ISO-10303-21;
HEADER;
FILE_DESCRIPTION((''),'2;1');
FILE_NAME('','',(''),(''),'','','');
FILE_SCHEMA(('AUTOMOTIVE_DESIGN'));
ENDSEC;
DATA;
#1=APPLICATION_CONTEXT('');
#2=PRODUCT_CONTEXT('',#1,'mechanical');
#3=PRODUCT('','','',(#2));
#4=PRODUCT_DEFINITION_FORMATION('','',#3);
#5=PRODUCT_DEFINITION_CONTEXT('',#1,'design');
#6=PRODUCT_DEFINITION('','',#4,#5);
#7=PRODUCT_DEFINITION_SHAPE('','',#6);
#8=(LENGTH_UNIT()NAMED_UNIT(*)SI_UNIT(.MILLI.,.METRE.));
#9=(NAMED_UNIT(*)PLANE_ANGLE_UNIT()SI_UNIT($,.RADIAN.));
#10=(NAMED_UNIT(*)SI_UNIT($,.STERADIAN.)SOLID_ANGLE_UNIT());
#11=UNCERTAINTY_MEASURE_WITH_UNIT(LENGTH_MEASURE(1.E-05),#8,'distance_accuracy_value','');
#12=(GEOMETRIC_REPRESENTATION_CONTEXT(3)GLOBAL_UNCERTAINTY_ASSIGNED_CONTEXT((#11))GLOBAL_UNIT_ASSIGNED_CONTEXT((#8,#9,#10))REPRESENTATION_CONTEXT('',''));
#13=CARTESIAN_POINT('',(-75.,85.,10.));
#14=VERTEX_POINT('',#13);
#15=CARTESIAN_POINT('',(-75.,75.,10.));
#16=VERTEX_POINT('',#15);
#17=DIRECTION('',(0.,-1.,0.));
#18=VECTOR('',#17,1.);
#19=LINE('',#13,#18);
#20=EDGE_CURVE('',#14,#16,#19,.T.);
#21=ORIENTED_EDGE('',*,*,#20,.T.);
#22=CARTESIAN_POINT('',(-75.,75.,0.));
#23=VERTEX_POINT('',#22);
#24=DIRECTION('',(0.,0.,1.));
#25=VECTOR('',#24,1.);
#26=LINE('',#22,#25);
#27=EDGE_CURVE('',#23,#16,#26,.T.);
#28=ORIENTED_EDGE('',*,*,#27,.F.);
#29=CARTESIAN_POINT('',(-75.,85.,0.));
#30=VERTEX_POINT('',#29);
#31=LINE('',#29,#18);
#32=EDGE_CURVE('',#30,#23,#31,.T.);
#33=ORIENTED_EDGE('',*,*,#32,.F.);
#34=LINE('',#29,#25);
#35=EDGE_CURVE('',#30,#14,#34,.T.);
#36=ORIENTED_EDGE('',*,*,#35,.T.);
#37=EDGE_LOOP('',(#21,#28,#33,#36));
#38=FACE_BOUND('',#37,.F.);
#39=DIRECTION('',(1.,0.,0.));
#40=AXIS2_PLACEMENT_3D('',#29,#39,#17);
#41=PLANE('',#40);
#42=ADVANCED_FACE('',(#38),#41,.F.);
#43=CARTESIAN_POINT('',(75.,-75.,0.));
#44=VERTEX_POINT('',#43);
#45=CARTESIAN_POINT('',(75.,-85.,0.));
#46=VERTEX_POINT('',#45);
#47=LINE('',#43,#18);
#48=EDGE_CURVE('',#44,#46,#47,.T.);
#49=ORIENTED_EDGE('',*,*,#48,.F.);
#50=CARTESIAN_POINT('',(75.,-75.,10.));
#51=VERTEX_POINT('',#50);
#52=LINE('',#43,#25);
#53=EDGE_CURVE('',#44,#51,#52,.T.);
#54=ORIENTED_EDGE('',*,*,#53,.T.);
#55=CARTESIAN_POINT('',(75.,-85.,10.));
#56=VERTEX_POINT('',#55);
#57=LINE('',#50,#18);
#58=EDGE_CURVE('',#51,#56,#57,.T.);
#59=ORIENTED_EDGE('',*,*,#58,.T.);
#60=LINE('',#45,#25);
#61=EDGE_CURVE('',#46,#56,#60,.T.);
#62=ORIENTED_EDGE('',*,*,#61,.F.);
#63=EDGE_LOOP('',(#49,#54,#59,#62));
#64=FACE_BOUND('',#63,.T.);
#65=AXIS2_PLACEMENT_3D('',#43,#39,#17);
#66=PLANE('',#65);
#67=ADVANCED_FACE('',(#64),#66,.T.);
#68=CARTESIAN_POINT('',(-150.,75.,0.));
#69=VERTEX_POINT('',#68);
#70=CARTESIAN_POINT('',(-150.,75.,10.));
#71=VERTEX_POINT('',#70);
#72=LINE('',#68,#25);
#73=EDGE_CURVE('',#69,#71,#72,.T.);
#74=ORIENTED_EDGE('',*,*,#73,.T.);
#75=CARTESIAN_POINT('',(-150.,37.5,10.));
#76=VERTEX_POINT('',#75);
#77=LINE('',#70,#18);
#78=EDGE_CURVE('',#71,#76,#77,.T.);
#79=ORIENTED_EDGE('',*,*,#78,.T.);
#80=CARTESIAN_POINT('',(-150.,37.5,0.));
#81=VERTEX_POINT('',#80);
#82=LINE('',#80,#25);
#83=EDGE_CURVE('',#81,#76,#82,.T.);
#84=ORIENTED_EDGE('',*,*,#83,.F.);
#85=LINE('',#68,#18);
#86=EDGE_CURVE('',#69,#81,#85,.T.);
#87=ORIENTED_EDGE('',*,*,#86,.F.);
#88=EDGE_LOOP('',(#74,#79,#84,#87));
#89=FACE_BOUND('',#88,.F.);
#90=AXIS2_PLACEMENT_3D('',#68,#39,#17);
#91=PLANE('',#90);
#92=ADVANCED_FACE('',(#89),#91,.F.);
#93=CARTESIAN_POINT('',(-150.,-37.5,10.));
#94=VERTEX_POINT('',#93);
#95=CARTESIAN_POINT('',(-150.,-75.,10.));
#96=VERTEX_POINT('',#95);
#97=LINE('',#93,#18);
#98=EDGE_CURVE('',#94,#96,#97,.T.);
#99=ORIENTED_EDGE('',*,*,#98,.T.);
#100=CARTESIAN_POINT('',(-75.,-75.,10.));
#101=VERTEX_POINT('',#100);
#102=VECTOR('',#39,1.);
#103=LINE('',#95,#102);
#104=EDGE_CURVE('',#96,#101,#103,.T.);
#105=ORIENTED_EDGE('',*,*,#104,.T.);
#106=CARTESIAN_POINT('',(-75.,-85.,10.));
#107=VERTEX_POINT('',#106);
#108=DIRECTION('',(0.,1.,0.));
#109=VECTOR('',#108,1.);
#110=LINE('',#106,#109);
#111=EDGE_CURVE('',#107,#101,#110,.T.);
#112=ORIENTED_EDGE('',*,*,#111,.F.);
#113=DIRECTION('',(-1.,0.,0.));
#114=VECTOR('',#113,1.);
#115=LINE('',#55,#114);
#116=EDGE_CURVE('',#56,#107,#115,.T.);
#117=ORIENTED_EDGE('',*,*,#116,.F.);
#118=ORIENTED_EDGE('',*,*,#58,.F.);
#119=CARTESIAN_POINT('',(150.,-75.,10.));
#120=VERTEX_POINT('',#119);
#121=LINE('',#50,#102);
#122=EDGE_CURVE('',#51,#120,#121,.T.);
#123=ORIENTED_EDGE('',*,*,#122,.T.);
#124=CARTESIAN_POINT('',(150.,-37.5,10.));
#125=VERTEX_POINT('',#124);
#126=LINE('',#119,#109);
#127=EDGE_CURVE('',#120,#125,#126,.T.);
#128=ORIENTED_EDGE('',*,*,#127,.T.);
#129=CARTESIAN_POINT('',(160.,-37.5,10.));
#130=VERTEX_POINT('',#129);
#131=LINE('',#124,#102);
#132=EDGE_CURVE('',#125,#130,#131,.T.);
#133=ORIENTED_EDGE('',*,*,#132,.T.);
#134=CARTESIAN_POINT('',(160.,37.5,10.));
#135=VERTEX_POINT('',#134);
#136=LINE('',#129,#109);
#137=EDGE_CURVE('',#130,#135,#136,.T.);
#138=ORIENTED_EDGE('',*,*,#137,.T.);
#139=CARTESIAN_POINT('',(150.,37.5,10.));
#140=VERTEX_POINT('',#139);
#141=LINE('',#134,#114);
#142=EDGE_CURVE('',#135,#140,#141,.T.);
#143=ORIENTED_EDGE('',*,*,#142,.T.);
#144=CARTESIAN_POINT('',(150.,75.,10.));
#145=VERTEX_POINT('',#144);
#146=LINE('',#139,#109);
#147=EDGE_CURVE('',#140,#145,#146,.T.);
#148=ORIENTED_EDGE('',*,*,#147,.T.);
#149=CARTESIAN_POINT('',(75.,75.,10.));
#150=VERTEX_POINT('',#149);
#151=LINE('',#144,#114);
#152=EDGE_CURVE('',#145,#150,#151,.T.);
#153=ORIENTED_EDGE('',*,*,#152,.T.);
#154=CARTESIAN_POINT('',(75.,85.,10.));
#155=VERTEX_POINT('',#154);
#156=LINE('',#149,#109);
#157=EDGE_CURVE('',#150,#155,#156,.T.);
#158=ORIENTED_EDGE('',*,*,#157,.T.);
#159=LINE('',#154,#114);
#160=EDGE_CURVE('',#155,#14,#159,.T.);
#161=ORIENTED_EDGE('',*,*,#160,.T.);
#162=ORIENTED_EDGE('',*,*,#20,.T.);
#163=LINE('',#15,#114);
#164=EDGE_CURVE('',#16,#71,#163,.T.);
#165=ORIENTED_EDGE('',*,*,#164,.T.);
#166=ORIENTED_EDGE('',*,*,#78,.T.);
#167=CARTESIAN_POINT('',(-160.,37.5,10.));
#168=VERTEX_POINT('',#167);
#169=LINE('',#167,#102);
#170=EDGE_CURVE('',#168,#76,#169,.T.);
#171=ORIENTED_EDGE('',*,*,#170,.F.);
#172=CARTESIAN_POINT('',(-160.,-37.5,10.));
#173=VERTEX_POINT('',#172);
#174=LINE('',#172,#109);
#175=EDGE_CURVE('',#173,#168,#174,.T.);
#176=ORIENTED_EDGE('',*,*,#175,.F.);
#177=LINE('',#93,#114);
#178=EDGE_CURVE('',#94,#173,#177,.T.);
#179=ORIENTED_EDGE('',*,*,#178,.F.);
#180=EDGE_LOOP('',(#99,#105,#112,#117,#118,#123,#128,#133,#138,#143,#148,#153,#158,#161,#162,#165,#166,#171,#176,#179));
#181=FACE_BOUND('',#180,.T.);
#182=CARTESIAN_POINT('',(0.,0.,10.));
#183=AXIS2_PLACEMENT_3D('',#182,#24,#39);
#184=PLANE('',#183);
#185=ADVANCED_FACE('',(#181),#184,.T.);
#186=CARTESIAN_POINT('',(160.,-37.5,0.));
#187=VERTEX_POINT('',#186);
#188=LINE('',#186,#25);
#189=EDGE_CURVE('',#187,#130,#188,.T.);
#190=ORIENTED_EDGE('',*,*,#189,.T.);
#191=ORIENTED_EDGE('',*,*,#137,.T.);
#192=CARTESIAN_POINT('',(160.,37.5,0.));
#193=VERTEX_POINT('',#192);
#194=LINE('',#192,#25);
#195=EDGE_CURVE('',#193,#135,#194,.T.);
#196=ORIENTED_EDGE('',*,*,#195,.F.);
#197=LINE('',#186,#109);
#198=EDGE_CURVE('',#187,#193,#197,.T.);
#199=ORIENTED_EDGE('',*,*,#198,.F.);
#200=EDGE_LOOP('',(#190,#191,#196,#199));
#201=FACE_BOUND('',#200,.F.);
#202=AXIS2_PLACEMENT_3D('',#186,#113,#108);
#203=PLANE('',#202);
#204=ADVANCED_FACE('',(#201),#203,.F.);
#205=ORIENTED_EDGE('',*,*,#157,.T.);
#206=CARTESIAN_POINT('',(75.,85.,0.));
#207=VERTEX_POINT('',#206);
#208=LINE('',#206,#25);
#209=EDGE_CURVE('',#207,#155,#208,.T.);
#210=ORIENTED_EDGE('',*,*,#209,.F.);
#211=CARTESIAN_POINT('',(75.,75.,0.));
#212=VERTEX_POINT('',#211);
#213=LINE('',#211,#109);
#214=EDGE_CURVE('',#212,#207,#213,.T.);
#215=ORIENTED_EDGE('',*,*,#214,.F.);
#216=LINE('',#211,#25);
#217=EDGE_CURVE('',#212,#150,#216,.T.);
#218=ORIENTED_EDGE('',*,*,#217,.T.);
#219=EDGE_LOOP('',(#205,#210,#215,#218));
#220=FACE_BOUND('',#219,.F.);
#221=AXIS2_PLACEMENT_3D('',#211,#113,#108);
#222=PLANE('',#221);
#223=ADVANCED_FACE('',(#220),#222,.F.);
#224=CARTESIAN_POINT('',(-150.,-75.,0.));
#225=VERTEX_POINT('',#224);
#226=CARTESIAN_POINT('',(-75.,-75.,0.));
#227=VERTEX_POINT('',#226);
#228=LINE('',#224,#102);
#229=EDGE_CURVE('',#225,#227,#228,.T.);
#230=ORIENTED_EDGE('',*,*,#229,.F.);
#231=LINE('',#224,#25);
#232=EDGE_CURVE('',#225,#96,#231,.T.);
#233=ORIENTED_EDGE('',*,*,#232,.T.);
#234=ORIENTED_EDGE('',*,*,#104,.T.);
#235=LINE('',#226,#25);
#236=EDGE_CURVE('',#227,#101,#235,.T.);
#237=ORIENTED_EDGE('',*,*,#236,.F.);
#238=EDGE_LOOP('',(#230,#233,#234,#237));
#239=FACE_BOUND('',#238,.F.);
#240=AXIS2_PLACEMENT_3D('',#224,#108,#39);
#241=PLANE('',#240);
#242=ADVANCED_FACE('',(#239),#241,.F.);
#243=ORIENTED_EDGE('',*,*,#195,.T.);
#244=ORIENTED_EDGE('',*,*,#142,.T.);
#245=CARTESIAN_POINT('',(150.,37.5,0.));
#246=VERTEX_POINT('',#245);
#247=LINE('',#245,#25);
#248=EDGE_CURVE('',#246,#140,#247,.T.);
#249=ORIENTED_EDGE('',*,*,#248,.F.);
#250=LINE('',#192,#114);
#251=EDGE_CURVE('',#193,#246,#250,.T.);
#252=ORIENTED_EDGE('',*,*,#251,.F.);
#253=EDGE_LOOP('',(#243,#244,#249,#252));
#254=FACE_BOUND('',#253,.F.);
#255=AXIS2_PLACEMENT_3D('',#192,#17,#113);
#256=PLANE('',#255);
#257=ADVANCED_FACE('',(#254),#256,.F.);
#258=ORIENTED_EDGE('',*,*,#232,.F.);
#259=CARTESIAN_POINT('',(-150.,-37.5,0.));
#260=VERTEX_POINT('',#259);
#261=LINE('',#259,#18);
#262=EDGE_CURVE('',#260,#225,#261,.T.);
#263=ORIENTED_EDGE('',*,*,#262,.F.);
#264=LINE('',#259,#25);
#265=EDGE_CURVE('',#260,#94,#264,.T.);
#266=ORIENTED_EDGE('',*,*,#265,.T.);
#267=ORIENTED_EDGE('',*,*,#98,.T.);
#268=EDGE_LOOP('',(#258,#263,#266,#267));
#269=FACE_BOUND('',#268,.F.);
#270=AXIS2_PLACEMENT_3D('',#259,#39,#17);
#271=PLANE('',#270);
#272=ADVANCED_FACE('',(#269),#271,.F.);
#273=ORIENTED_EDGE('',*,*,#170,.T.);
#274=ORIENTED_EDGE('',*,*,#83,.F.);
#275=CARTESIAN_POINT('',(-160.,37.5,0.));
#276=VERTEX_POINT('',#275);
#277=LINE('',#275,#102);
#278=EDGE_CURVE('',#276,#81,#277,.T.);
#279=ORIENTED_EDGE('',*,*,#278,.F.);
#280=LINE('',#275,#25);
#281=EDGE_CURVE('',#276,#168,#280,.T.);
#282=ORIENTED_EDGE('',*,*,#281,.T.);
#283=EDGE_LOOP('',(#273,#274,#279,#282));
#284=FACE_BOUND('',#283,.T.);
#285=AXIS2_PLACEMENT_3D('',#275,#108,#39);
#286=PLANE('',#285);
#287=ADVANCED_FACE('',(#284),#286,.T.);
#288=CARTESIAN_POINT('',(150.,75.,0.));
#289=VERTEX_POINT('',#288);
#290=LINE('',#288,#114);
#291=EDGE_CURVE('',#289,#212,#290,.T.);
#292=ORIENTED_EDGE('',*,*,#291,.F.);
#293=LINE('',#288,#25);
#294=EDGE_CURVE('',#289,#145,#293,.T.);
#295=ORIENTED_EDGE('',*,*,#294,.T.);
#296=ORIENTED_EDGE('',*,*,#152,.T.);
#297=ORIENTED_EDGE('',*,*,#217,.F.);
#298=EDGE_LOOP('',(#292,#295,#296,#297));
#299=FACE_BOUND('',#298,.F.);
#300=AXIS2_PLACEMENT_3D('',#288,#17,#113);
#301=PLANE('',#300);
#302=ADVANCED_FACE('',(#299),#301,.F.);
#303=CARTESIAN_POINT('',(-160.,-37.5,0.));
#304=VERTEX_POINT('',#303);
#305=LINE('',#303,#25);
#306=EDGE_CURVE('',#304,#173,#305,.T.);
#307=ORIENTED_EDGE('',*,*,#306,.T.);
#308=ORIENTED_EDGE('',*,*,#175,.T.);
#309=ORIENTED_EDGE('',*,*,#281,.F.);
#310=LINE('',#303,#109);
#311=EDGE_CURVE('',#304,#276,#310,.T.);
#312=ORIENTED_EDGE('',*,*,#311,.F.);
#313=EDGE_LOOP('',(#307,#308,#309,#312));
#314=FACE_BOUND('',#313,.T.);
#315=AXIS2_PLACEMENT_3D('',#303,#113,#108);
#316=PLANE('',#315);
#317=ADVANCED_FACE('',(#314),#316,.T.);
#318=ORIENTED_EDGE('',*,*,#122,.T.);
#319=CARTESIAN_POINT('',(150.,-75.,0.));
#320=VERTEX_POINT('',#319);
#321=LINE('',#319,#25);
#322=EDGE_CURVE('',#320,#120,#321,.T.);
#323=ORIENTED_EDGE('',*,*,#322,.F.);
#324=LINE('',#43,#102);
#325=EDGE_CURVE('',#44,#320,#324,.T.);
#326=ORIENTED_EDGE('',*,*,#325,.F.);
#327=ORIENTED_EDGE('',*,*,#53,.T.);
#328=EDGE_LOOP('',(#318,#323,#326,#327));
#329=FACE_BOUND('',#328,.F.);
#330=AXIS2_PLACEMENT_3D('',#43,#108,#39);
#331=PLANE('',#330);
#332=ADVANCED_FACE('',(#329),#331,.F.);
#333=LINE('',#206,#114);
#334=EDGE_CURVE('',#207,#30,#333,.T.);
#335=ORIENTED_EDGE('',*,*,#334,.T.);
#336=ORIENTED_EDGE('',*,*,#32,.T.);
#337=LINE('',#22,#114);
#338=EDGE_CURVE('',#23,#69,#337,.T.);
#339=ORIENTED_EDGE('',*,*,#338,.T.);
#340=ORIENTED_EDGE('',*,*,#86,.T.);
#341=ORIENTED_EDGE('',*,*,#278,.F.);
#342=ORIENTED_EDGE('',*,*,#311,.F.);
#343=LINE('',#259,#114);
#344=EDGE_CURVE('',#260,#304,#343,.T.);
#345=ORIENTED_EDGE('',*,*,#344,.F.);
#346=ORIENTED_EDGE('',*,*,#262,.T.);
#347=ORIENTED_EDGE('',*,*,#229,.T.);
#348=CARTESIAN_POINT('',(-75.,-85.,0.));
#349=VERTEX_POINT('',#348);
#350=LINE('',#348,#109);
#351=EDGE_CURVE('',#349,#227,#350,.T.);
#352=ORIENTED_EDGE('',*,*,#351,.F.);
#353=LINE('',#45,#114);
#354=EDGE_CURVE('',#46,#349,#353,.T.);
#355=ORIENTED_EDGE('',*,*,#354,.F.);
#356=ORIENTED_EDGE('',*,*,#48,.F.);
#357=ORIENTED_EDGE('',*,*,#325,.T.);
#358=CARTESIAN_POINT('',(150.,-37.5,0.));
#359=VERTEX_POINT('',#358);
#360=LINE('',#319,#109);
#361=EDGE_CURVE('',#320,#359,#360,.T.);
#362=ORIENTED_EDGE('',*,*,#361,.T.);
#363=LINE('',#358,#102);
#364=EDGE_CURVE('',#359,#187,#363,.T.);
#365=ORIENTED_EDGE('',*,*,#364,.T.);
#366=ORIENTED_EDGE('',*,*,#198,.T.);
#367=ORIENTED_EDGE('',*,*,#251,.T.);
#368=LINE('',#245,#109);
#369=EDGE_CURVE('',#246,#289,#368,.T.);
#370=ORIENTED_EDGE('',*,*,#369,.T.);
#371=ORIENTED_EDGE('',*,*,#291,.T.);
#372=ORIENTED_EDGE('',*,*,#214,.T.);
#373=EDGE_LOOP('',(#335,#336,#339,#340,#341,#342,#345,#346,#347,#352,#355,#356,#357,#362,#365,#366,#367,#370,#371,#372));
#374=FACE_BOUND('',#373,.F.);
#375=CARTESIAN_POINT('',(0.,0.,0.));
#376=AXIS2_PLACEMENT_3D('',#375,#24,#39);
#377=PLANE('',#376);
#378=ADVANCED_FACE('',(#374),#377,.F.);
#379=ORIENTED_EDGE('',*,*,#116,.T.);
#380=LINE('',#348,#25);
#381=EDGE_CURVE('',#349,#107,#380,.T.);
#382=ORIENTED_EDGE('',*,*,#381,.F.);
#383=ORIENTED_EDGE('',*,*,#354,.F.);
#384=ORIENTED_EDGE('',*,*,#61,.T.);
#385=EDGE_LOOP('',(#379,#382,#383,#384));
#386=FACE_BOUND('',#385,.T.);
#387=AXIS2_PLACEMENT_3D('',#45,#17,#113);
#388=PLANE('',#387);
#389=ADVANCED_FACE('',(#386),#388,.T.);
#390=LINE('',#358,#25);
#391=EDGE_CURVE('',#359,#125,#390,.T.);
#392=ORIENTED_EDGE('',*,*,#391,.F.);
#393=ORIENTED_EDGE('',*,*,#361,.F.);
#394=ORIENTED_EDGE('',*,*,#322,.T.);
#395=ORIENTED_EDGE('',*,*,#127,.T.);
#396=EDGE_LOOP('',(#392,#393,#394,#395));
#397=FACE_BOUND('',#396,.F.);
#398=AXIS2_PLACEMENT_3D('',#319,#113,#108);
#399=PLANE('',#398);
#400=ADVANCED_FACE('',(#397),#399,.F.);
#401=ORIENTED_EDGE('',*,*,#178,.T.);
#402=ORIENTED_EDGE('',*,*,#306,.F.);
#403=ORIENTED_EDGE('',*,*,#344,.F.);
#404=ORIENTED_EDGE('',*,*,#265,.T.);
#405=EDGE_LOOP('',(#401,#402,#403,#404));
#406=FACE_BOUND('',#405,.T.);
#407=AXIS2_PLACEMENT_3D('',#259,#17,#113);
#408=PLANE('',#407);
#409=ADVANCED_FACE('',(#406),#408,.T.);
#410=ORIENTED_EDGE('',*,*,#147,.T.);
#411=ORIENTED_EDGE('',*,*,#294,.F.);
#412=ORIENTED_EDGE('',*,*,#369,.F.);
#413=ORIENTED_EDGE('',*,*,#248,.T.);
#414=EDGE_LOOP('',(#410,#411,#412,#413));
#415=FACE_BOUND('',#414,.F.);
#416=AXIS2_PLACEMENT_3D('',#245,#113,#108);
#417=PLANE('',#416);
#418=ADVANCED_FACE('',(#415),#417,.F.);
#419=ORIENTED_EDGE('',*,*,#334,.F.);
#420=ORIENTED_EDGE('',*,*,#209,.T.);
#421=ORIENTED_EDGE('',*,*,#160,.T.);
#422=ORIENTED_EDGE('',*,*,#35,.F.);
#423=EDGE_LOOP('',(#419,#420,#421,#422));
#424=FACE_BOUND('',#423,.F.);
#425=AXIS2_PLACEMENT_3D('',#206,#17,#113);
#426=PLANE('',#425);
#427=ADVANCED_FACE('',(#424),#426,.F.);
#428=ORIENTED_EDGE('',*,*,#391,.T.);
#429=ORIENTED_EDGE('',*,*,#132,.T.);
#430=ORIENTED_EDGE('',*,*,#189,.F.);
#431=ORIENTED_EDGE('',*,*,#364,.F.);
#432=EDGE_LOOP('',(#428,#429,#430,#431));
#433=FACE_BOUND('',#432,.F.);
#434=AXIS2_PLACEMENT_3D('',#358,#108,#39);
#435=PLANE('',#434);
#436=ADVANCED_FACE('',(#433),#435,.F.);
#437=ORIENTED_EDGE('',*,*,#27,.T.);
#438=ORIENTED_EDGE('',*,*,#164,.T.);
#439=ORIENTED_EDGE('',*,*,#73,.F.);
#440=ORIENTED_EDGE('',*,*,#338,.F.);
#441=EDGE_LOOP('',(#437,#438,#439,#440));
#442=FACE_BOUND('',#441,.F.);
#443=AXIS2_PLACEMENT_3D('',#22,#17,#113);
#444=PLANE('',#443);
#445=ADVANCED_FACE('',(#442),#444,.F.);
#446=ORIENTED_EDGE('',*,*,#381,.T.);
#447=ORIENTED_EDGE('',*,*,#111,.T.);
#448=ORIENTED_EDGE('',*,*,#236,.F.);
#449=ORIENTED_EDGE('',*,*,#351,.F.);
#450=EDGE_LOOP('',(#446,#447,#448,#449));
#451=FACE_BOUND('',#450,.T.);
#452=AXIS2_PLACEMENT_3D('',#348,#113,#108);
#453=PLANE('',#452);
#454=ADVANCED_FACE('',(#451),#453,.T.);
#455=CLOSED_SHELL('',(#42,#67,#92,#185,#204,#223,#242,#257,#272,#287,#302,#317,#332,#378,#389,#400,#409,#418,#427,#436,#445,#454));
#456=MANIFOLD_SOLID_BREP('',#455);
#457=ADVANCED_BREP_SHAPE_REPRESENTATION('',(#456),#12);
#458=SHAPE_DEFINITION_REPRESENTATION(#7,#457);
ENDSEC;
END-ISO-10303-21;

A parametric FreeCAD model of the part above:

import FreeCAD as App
import Part
import Sketcher
from FreeCAD import Vector

doc = App.newDocument("Part")
body = doc.addObject("PartDesign::Body", "Body")

sketch1 = body.newObject("Sketcher::SketchObject", "Sketch")
sketch1.AttachmentSupport = (doc.getObject("XY_Plane"), [""])
sketch1.MapMode = "FlatFace"
sketch1.addGeometry(Part.LineSegment(Vector(-160, -37.5, 0), Vector(-150, -37.5, 0)), False)
sketch1.addGeometry(Part.LineSegment(Vector(-150, -37.5, 0), Vector(-150, -75, 0)), False)
sketch1.addGeometry(Part.LineSegment(Vector(-150, -75, 0), Vector(-75, -75, 0)), False)
sketch1.addGeometry(Part.LineSegment(Vector(-75, -75, 0), Vector(-75, -85, 0)), False)
sketch1.addGeometry(Part.LineSegment(Vector(-75, -85, 0), Vector(75, -85, 0)), False)
sketch1.addGeometry(Part.LineSegment(Vector(75, -85, 0), Vector(75, -75, 0)), False)
sketch1.addGeometry(Part.LineSegment(Vector(75, -75, 0), Vector(150, -75, 0)), False)
sketch1.addGeometry(Part.LineSegment(Vector(150, -75, 0), Vector(150, -37.5, 0)), False)
sketch1.addGeometry(Part.LineSegment(Vector(150, -37.5, 0), Vector(160, -37.5, 0)), False)
sketch1.addGeometry(Part.LineSegment(Vector(160, -37.5, 0), Vector(160, 37.5, 0)), False)
sketch1.addGeometry(Part.LineSegment(Vector(160, 37.5, 0), Vector(150, 37.5, 0)), False)
sketch1.addGeometry(Part.LineSegment(Vector(150, 37.5, 0), Vector(150, 75, 0)), False)
sketch1.addGeometry(Part.LineSegment(Vector(150, 75, 0), Vector(75, 75, 0)), False)
sketch1.addGeometry(Part.LineSegment(Vector(75, 75, 0), Vector(75, 85, 0)), False)
sketch1.addGeometry(Part.LineSegment(Vector(75, 85, 0), Vector(-75, 85, 0)), False)
sketch1.addGeometry(Part.LineSegment(Vector(-75, 85, 0), Vector(-75, 75, 0)), False)
sketch1.addGeometry(Part.LineSegment(Vector(-75, 75, 0), Vector(-150, 75, 0)), False)
sketch1.addGeometry(Part.LineSegment(Vector(-150, 75, 0), Vector(-150, 37.5, 0)), False)
sketch1.addGeometry(Part.LineSegment(Vector(-150, 37.5, 0), Vector(-160, 37.5, 0)), False)
sketch1.addGeometry(Part.LineSegment(Vector(-160, 37.5, 0), Vector(-160, -37.5, 0)), False)
sketch1.addConstraint(Sketcher.Constraint("Coincident", 0, 2, 1, 1))
sketch1.addConstraint(Sketcher.Constraint("Coincident", 1, 2, 2, 1))
sketch1.addConstraint(Sketcher.Constraint("Coincident", 2, 2, 3, 1))
sketch1.addConstraint(Sketcher.Constraint("Coincident", 3, 2, 4, 1))
sketch1.addConstraint(Sketcher.Constraint("Coincident", 4, 2, 5, 1))
sketch1.addConstraint(Sketcher.Constraint("Coincident", 5, 2, 6, 1))
sketch1.addConstraint(Sketcher.Constraint("Coincident", 6, 2, 7, 1))
sketch1.addConstraint(Sketcher.Constraint("Coincident", 7, 2, 8, 1))
sketch1.addConstraint(Sketcher.Constraint("Coincident", 8, 2, 9, 1))
sketch1.addConstraint(Sketcher.Constraint("Coincident", 9, 2, 10, 1))
sketch1.addConstraint(Sketcher.Constraint("Coincident", 10, 2, 11, 1))
sketch1.addConstraint(Sketcher.Constraint("Coincident", 11, 2, 12, 1))
sketch1.addConstraint(Sketcher.Constraint("Coincident", 12, 2, 13, 1))
sketch1.addConstraint(Sketcher.Constraint("Coincident", 13, 2, 14, 1))
sketch1.addConstraint(Sketcher.Constraint("Coincident", 14, 2, 15, 1))
sketch1.addConstraint(Sketcher.Constraint("Coincident", 15, 2, 16, 1))
sketch1.addConstraint(Sketcher.Constraint("Coincident", 16, 2, 17, 1))
sketch1.addConstraint(Sketcher.Constraint("Coincident", 17, 2, 18, 1))
sketch1.addConstraint(Sketcher.Constraint("Coincident", 18, 2, 19, 1))
sketch1.addConstraint(Sketcher.Constraint("Coincident", 19, 2, 0, 1))
sketch1.addConstraint(Sketcher.Constraint("Horizontal", 0))
sketch1.addConstraint(Sketcher.Constraint("Vertical", 1))
sketch1.addConstraint(Sketcher.Constraint("Horizontal", 2))
sketch1.addConstraint(Sketcher.Constraint("Vertical", 3))
sketch1.addConstraint(Sketcher.Constraint("Horizontal", 4))
sketch1.addConstraint(Sketcher.Constraint("Vertical", 5))
sketch1.addConstraint(Sketcher.Constraint("Horizontal", 6))
sketch1.addConstraint(Sketcher.Constraint("Vertical", 7))
sketch1.addConstraint(Sketcher.Constraint("Horizontal", 8))
sketch1.addConstraint(Sketcher.Constraint("Vertical", 9))
sketch1.addConstraint(Sketcher.Constraint("Horizontal", 10))
sketch1.addConstraint(Sketcher.Constraint("Vertical", 11))
sketch1.addConstraint(Sketcher.Constraint("Horizontal", 12))
sketch1.addConstraint(Sketcher.Constraint("Vertical", 13))
sketch1.addConstraint(Sketcher.Constraint("Horizontal", 14))
sketch1.addConstraint(Sketcher.Constraint("Vertical", 15))
sketch1.addConstraint(Sketcher.Constraint("Horizontal", 16))
sketch1.addConstraint(Sketcher.Constraint("Vertical", 17))
sketch1.addConstraint(Sketcher.Constraint("Horizontal", 18))
sketch1.addConstraint(Sketcher.Constraint("Vertical", 19))
sketch1.addConstraint(Sketcher.Constraint("Symmetric", 0, 2, 10, 2, -1, 1))
sketch1.addConstraint(Sketcher.Constraint("Symmetric", 2, 2, 12, 2, -1, 1))
sketch1.addConstraint(Sketcher.Constraint("Symmetric", 4, 2, 14, 2, -1, 1))
sketch1.addConstraint(Sketcher.Constraint("Symmetric", 6, 2, 16, 2, -1, 1))
sketch1.addConstraint(Sketcher.Constraint("Symmetric", 8, 2, 18, 2, -1, 1))
sketch1.addConstraint(Sketcher.Constraint("Symmetric", 2, 2, 5, 2, -2))
sketch1.addConstraint(Sketcher.Constraint("Symmetric", 0, 2, 7, 2, -2))
sketch1.addConstraint(Sketcher.Constraint("Equal", 18, 3))
sketch1.addConstraint(Sketcher.Constraint("Equal", 16, 9))
sketch1.addConstraint(Sketcher.Constraint("DistanceX", 0, 1, 0, 2, 10.0))
sketch1.addConstraint(Sketcher.Constraint("DistanceX", 2, 1, 2, 2, 75.0))
sketch1.addConstraint(Sketcher.Constraint("DistanceX", 4, 1, 4, 2, 150.0))
sketch1.addConstraint(Sketcher.Constraint("DistanceY", 1, 2, -1, 1, 75.0))
pad1 = body.newObject("PartDesign::Pad", "Pad")
pad1.Profile = sketch1
pad1.Length = 10

doc.recompute()
